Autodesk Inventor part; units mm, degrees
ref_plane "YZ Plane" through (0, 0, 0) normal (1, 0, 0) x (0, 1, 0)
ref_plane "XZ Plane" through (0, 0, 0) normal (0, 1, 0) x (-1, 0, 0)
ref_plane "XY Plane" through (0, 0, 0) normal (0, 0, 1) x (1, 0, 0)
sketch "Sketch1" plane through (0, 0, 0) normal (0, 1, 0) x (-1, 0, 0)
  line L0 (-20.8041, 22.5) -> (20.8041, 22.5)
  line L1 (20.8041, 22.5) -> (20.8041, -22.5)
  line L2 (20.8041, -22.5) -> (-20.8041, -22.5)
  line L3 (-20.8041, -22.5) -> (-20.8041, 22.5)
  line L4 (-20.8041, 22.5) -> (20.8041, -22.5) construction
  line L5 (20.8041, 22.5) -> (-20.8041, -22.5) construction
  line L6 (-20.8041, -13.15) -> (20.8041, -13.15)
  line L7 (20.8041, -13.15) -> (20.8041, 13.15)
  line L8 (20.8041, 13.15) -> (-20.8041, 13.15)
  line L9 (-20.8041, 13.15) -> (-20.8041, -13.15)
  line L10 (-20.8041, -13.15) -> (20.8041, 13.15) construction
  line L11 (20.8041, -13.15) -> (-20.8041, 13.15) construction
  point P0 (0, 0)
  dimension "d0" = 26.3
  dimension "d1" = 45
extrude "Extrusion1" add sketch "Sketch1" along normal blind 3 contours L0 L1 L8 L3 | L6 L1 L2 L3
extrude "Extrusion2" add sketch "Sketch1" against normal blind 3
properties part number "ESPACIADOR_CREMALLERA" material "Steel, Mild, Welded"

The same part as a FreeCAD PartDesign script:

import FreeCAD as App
import Part
import Sketcher
from FreeCAD import Vector
Q = App.Units.Quantity

doc = App.newDocument("Part")
params = doc.addObject("Spreadsheet::Sheet", "Params")
for row, (alias, value) in enumerate([
    ("pad1_length", "3 mm"),
    ("sketch2_height", "45 mm"),
    ("pad2_length", "3 mm"),
], start=1):
    params.set(f"A{row}", alias)
    params.set(f"B{row}", "=" + value)
    params.setAlias(f"B{row}", alias)

body = doc.addObject("PartDesign::Body", "Body")
body.AllowCompound = True

sketch1 = doc.addObject("Sketcher::SketchObject", "Sketch")
body.addObject(sketch1)
sketch1.AttachmentSupport = (doc.XZ_Plane, [""])
sketch1.MapMode = "FlatFace"
sketch1.addGeometry(Part.LineSegment(Vector(-21, 22, 0), Vector(21, 22, 0)), False)
sketch1.addGeometry(Part.LineSegment(Vector(21, 22, 0), Vector(21, 13, 0)), False)
sketch1.addGeometry(Part.LineSegment(Vector(21, 13, 0), Vector(-21, 13, 0)), False)
sketch1.addGeometry(Part.LineSegment(Vector(-21, 13, 0), Vector(-21, 22, 0)), False)
sketch1.addGeometry(Part.LineSegment(Vector(-21, -13, 0), Vector(21, -13, 0)), False)
sketch1.addGeometry(Part.LineSegment(Vector(21, -13, 0), Vector(21, -22, 0)), False)
sketch1.addGeometry(Part.LineSegment(Vector(21, -22, 0), Vector(-21, -22, 0)), False)
sketch1.addGeometry(Part.LineSegment(Vector(-21, -22, 0), Vector(-21, -13, 0)), False)
sketch1.addConstraint(Sketcher.Constraint("Coincident", 0, 2, 1, 1))
sketch1.addConstraint(Sketcher.Constraint("Coincident", 1, 2, 2, 1))
sketch1.addConstraint(Sketcher.Constraint("Coincident", 2, 2, 3, 1))
sketch1.addConstraint(Sketcher.Constraint("Coincident", 3, 2, 0, 1))
sketch1.addConstraint(Sketcher.Constraint("Coincident", 4, 2, 5, 1))
sketch1.addConstraint(Sketcher.Constraint("Coincident", 5, 2, 6, 1))
sketch1.addConstraint(Sketcher.Constraint("Coincident", 6, 2, 7, 1))
sketch1.addConstraint(Sketcher.Constraint("Coincident", 7, 2, 4, 1))
sketch1.addConstraint(Sketcher.Constraint("Horizontal", 0))
sketch1.addConstraint(Sketcher.Constraint("Vertical", 1))
sketch1.addConstraint(Sketcher.Constraint("Horizontal", 2))
sketch1.addConstraint(Sketcher.Constraint("Vertical", 3))
sketch1.addConstraint(Sketcher.Constraint("Horizontal", 4))
sketch1.addConstraint(Sketcher.Constraint("Vertical", 5))
sketch1.addConstraint(Sketcher.Constraint("Horizontal", 6))
sketch1.addConstraint(Sketcher.Constraint("Vertical", 7))
sketch1.addConstraint(Sketcher.Constraint("Symmetric", 2, 2, 4, 2, -1, 1))
sketch1.addConstraint(Sketcher.Constraint("Symmetric", 0, 2, 6, 2, -1, 1))
sketch1.addConstraint(Sketcher.Constraint("Vertical", 1, 2, 4, 2))
sketch1.addConstraint(Sketcher.Constraint("DistanceY", 5, 2, 0, 2, Q("45 mm")))
sketch1.addConstraint(Sketcher.Constraint("DistanceY", 4, 2, 1, 2, Q("26.3 mm")))
sketch1.addConstraint(Sketcher.Constraint("DistanceX", 0, 1, 0, 2, Q("41.6082 mm")))
pad1 = doc.addObject("PartDesign::Pad", "Pad")
body.addObject(pad1)
pad1.Profile = sketch1
pad1.setExpression("Length", "Params.pad1_length")
pad1.Reversed = True

sketch2 = doc.addObject("Sketcher::SketchObject", "Sketch001")
body.addObject(sketch2)
sketch2.AttachmentSupport = (doc.XZ_Plane, [""])
sketch2.MapMode = "FlatFace"
sketch2.addGeometry(Part.LineSegment(Vector(-21, 22, 0), Vector(21, 22, 0)), False)
sketch2.addGeometry(Part.LineSegment(Vector(21, 22, 0), Vector(21, -22, 0)), False)
sketch2.addGeometry(Part.LineSegment(Vector(21, -22, 0), Vector(-21, -22, 0)), False)
sketch2.addGeometry(Part.LineSegment(Vector(-21, -22, 0), Vector(-21, 22, 0)), False)
sketch2.addConstraint(Sketcher.Constraint("Coincident", 0, 2, 1, 1))
sketch2.addConstraint(Sketcher.Constraint("Coincident", 1, 2, 2, 1))
sketch2.addConstraint(Sketcher.Constraint("Coincident", 2, 2, 3, 1))
sketch2.addConstraint(Sketcher.Constraint("Coincident", 3, 2, 0, 1))
sketch2.addConstraint(Sketcher.Constraint("Horizontal", 0))
sketch2.addConstraint(Sketcher.Constraint("Vertical", 1))
sketch2.addConstraint(Sketcher.Constraint("Horizontal", 2))
sketch2.addConstraint(Sketcher.Constraint("Vertical", 3))
sketch2.addConstraint(Sketcher.Constraint("Symmetric", 0, 2, 2, 2, -1, 1))
sketch2.addConstraint(Sketcher.Constraint("DistanceY", 1, 2, 1, 1, Q("45 mm")))
sketch2.addConstraint(Sketcher.Constraint("DistanceX", 0, 1, 0, 2, Q("41.6082 mm")))
sketch2.setExpression("Constraints[9]", "Params.sketch2_height")
pad2 = doc.addObject("PartDesign::Pad", "Pad001")
body.addObject(pad2)
pad2.Profile = sketch2
pad2.setExpression("Length", "Params.pad2_length")

doc.recompute()
